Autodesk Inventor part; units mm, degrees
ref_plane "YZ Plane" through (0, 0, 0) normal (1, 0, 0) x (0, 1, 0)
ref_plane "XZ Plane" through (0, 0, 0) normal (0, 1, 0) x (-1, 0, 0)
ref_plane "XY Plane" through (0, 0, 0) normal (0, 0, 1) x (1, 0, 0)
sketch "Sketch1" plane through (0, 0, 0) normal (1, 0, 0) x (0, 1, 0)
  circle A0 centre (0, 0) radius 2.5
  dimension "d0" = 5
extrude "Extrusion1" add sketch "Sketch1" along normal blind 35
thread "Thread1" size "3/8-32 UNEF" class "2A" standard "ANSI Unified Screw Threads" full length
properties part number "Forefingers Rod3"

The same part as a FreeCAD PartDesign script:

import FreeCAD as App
import Part
import Sketcher
from FreeCAD import Vector
Q = App.Units.Quantity

doc = App.newDocument("Part")
body = doc.addObject("PartDesign::Body", "Body")

sketch1 = body.newObject("Sketcher::SketchObject", "Sketch")
sketch1.AttachmentSupport = (doc.getObject("YZ_Plane"), [""])
sketch1.MapMode = "FlatFace"
sketch1.addGeometry(Part.Circle(Vector(0, 0, 0), Vector(0, 0, 1), 2.5), False)
sketch1.addConstraint(Sketcher.Constraint("Coincident", 0, 3, -1, 1))
sketch1.addConstraint(Sketcher.Constraint("Diameter", 0, Q("5 mm")))
pad1 = body.newObject("PartDesign::Pad", "Pad")
pad1.Profile = sketch1
pad1.Length = 35

doc.recompute()
